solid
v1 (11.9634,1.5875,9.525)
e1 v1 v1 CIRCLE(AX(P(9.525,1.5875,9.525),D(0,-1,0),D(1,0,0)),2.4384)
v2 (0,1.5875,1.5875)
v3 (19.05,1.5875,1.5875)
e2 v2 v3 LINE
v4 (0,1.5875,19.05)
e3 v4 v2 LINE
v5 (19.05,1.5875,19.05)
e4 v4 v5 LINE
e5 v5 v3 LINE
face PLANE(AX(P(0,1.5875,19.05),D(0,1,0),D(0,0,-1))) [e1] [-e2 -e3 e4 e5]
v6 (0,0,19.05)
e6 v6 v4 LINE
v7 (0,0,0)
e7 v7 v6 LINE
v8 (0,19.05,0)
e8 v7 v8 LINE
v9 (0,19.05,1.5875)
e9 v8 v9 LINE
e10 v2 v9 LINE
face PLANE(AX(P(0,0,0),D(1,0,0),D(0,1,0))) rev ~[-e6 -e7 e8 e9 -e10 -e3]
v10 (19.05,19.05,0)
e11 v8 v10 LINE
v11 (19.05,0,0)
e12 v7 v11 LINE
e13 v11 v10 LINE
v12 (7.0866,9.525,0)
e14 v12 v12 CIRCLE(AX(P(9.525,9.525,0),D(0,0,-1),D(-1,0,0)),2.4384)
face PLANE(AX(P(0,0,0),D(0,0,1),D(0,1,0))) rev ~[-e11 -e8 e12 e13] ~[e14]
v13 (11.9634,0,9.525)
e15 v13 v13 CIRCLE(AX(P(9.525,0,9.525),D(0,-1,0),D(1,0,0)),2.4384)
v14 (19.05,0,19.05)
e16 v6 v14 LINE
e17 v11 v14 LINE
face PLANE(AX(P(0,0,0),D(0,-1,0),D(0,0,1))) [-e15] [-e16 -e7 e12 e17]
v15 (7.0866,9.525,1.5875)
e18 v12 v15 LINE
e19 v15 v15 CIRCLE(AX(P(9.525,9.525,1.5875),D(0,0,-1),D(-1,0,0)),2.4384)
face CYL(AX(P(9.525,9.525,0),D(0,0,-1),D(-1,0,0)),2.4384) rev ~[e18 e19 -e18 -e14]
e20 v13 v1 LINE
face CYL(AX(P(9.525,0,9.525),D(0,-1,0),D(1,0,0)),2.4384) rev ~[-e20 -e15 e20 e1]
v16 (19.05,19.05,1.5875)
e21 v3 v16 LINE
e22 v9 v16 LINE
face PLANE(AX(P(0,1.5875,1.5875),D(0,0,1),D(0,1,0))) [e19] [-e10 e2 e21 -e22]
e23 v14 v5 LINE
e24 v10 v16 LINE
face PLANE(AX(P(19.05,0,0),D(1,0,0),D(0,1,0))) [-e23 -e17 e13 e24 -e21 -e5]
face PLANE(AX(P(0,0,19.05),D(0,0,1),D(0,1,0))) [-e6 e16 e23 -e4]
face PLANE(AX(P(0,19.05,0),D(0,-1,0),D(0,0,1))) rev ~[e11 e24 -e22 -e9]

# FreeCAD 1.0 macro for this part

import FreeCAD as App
import Part
import Sketcher
Q = App.Units.Quantity

doc = App.newDocument("Part")
body = doc.addObject("PartDesign::Body", "Body")

sketch1 = body.newObject("Sketcher::SketchObject", "Sketch")
sketch1.AttachmentSupport = (doc.getObject("YZ_Plane"), [""])
sketch1.MapMode = "FlatFace"
sketch1.addGeometry(Part.LineSegment(App.Vector(0, 19.05, 0), App.Vector(0, 0, 0)), False)
sketch1.addGeometry(Part.LineSegment(App.Vector(0, 0, 0), App.Vector(19.05, 0, 0)), False)
sketch1.addGeometry(Part.LineSegment(App.Vector(19.05, 0, 0), App.Vector(19.05, 1.5875, 0)), False)
sketch1.addGeometry(Part.LineSegment(App.Vector(19.05, 1.5875, 0), App.Vector(1.5875, 1.5875, 0)), False)
sketch1.addGeometry(Part.LineSegment(App.Vector(1.5875, 1.5875, 0), App.Vector(1.5875, 19.05, 0)), False)
sketch1.addGeometry(Part.LineSegment(App.Vector(1.5875, 19.05, 0), App.Vector(0, 19.05, 0)), False)
sketch1.addConstraint(Sketcher.Constraint("Coincident", 0, 2, 1, 1))
sketch1.addConstraint(Sketcher.Constraint("Coincident", 1, 2, 2, 1))
sketch1.addConstraint(Sketcher.Constraint("Coincident", 2, 2, 3, 1))
sketch1.addConstraint(Sketcher.Constraint("Coincident", 3, 2, 4, 1))
sketch1.addConstraint(Sketcher.Constraint("Coincident", 4, 2, 5, 1))
sketch1.addConstraint(Sketcher.Constraint("Coincident", 5, 2, 0, 1))
sketch1.addConstraint(Sketcher.Constraint("Vertical", 0))
sketch1.addConstraint(Sketcher.Constraint("Horizontal", 1))
sketch1.addConstraint(Sketcher.Constraint("Vertical", 2))
sketch1.addConstraint(Sketcher.Constraint("Horizontal", 3))
sketch1.addConstraint(Sketcher.Constraint("Vertical", 4))
sketch1.addConstraint(Sketcher.Constraint("Horizontal", 5))
sketch1.addConstraint(Sketcher.Constraint("Coincident", 0, 2, -1, 1))
sketch1.addConstraint(Sketcher.Constraint("Equal", 1, 0))
sketch1.addConstraint(Sketcher.Constraint("Equal", 5, 2))
sketch1.addConstraint(Sketcher.Constraint("DistanceX", 1, 1, 1, 2, Q("0.75 in")))
sketch1.addConstraint(Sketcher.Constraint("DistanceX", 5, 2, 5, 1, Q("0.0625 in")))
pad1 = body.newObject("PartDesign::Pad", "Pad")
pad1.Profile = sketch1
pad1.Length = Q("0.75 in")

sketch2 = body.newObject("Sketcher::SketchObject", "Sketch001")
sketch2.AttachmentSupport = (doc.getObject("XZ_Plane"), [""])
sketch2.MapMode = "FlatFace"
sketch2.addGeometry(Part.Circle(App.Vector(9.525, 9.525, 0), App.Vector(0, 0, 1), 2.4384), False)
sketch2.addConstraint(Sketcher.Constraint("Diameter", 0, Q("0.192 in")))
sketch2.addConstraint(Sketcher.Constraint("DistanceX", -1, 1, 0, 3, Q("0.375 in")))
sketch2.addConstraint(Sketcher.Constraint("DistanceY", -1, 1, 0, 3, Q("0.375 in")))
pocket1 = body.newObject("PartDesign::Pocket", "Pocket")
pocket1.Profile = sketch2
pocket1.Length = Q("1 in")

sketch3 = body.newObject("Sketcher::SketchObject", "Sketch002")
sketch3.AttachmentSupport = (doc.getObject("XY_Plane"), [""])
sketch3.MapMode = "FlatFace"
sketch3.addGeometry(Part.Circle(App.Vector(9.525, 9.525, 0), App.Vector(0, 0, 1), 2.4384), False)
sketch3.addConstraint(Sketcher.Constraint("Diameter", 0, Q("0.192 in")))
sketch3.addConstraint(Sketcher.Constraint("DistanceX", -1, 1, 0, 3, Q("0.375 in")))
sketch3.addConstraint(Sketcher.Constraint("DistanceY", -1, 1, 0, 3, Q("0.375 in")))
pocket2 = body.newObject("PartDesign::Pocket", "Pocket001")
pocket2.Profile = sketch3
pocket2.Length = Q("1 in")
pocket2.Reversed = True

doc.recompute()
